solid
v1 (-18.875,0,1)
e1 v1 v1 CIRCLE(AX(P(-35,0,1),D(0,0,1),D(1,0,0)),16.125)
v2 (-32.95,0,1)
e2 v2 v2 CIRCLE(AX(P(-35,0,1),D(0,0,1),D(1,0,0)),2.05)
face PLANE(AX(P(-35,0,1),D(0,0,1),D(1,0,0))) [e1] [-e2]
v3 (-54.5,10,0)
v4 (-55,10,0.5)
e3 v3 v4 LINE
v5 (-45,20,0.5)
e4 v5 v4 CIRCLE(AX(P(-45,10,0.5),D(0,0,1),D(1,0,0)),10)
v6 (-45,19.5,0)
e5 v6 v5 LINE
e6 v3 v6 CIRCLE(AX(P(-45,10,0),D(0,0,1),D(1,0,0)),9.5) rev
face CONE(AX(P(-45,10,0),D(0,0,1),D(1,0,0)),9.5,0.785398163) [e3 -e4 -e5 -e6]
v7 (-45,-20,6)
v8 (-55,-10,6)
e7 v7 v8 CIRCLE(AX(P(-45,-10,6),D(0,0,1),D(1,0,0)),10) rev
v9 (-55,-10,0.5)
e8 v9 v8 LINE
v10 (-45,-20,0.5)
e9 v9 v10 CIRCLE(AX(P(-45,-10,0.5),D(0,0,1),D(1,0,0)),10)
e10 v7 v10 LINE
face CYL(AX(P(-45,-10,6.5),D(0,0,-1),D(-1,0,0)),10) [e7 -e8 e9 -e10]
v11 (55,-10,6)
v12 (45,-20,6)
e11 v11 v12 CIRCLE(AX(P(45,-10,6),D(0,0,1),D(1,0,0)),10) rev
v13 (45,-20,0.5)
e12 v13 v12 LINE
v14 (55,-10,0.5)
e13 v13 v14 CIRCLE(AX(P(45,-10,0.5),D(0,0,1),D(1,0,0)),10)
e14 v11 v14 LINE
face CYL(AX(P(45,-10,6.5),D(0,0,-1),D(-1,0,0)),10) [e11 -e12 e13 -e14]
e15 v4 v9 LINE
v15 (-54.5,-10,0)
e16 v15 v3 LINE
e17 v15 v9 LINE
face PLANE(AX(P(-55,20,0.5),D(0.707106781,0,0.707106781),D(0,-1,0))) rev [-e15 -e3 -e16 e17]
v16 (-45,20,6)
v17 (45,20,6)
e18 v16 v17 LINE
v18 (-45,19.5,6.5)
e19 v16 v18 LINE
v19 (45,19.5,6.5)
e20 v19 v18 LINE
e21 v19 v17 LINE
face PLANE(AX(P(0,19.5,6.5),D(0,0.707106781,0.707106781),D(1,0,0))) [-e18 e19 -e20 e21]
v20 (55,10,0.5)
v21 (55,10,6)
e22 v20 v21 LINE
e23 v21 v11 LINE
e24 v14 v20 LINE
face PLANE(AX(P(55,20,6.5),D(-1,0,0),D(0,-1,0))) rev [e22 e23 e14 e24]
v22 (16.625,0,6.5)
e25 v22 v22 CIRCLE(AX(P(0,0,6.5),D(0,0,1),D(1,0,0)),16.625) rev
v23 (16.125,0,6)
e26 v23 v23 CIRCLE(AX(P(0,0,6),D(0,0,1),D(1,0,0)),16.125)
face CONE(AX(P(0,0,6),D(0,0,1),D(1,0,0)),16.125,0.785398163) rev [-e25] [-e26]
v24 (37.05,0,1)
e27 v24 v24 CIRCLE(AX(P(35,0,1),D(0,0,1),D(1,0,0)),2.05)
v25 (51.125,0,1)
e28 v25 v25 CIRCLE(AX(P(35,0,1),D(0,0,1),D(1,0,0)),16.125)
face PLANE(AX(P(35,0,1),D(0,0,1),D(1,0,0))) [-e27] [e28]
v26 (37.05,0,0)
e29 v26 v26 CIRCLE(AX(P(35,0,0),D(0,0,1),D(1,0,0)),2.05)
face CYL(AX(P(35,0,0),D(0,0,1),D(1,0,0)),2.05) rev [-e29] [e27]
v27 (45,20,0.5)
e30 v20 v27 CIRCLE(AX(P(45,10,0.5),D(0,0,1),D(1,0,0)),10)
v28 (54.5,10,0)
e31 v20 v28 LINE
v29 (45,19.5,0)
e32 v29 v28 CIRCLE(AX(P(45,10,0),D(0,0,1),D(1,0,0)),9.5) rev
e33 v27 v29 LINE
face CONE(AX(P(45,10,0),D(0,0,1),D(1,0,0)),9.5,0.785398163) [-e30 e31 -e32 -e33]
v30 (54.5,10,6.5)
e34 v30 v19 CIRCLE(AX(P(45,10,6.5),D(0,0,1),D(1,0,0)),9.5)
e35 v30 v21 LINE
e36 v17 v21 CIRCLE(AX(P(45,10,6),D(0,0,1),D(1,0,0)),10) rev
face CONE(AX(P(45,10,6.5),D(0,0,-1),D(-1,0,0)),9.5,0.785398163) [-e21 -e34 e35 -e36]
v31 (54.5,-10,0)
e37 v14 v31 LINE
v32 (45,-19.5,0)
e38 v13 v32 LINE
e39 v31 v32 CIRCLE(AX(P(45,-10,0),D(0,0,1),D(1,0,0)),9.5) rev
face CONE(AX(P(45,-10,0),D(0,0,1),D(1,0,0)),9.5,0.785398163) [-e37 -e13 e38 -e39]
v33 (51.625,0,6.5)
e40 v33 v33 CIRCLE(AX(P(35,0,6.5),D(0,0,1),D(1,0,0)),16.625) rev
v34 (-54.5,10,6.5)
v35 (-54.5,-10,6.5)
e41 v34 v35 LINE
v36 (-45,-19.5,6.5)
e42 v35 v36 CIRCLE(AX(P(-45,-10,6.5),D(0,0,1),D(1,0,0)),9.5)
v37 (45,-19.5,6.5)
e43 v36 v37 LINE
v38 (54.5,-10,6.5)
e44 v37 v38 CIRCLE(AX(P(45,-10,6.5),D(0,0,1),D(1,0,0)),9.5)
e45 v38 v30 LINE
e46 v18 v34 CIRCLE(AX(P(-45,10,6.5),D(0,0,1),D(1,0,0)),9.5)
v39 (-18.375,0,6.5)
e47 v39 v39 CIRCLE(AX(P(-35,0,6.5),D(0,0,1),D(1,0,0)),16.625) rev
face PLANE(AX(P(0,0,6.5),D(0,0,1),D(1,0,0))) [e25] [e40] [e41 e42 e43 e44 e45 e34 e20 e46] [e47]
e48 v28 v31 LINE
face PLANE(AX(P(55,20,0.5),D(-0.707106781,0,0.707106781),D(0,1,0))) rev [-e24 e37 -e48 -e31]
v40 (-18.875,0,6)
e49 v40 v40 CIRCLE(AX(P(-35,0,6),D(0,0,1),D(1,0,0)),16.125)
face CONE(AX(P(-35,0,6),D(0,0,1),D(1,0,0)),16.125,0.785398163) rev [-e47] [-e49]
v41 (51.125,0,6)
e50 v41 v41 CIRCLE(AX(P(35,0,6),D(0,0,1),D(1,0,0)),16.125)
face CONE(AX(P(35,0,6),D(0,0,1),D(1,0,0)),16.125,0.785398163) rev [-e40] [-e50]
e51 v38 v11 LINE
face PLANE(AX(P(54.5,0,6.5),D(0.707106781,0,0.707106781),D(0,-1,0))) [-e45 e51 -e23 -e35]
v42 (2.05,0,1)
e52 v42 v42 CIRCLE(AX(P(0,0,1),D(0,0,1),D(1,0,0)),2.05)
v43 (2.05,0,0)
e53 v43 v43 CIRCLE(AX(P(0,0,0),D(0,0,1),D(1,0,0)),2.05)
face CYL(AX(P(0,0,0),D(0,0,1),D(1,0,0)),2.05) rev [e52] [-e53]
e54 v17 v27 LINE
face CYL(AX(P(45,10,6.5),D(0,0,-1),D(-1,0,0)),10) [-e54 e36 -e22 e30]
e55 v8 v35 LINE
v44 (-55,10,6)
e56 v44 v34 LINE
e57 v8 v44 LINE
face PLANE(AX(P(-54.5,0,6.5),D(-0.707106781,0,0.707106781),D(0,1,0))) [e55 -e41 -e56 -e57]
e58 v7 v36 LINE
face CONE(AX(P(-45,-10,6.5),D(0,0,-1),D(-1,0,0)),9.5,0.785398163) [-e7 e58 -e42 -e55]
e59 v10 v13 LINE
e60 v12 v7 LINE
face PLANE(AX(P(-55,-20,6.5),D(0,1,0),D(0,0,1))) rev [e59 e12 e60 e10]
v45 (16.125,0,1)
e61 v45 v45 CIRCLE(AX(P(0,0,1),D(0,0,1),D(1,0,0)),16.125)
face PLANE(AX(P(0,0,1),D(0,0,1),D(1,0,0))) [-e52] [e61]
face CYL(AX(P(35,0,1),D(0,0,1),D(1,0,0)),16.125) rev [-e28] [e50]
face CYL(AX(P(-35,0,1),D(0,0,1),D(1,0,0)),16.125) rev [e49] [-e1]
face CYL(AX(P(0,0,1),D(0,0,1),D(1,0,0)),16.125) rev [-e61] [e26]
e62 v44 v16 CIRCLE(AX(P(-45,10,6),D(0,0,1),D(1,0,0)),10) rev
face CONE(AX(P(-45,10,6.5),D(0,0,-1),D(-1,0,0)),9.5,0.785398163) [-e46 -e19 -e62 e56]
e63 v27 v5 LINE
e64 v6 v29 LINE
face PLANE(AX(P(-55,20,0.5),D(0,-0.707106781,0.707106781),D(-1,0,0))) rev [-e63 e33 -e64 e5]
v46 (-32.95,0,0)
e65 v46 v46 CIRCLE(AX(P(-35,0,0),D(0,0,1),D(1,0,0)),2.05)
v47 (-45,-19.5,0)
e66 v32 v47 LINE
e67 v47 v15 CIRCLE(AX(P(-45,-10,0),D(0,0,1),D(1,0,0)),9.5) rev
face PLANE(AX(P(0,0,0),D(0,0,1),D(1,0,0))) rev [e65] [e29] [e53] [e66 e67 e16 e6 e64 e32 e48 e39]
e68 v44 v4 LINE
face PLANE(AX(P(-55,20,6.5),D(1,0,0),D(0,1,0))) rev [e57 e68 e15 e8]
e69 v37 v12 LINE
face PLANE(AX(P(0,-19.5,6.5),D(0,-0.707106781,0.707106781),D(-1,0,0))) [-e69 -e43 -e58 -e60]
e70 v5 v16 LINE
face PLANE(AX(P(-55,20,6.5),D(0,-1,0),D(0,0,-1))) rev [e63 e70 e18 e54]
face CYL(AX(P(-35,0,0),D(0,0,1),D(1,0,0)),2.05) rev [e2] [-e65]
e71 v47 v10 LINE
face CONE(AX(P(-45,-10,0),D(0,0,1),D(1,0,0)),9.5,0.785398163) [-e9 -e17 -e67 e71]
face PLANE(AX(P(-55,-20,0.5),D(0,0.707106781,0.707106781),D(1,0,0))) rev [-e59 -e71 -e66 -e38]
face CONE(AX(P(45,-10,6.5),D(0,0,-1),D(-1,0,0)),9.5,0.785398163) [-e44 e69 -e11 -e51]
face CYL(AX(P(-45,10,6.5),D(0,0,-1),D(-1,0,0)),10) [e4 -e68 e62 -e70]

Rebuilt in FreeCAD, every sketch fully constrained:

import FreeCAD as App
import Part
import Sketcher
from FreeCAD import Vector


def edges_at(feature, points):
    """Names of the edges that pass closest to the given points."""
    edges = feature.Shape.Edges
    near = lambda p: min(range(len(edges)), key=lambda i: edges[i].distToShape(Part.Vertex(*p))[0])
    return sorted({f"Edge{near(p) + 1}" for p in points})


def add_polygon(sketch, points):
    """Adds a closed chain of lines whose ends are joined by coincident constraints."""
    first, n = sketch.GeometryCount, len(points)
    for a, b in zip(points, points[1:] + points[:1]):
        sketch.addGeometry(Part.LineSegment(App.Vector(*a, 0), App.Vector(*b, 0)), False)
    for i in range(n):
        sketch.addConstraint(Sketcher.Constraint("Coincident", first + i, 2, first + (i + 1) % n, 1))

doc = App.newDocument("Part")
body = doc.addObject("PartDesign::Body", "Body")

sketch1 = body.newObject("Sketcher::SketchObject", "Sketch")
sketch1.AttachmentSupport = (doc.getObject("XY_Plane"), [""])
sketch1.MapMode = "FlatFace"
add_polygon(sketch1, [(-55, 20), (-55, -20), (55, -20), (55, 20)])
sketch1.addConstraint([
    Sketcher.Constraint("Vertical", 0),
    Sketcher.Constraint("Horizontal", 1),
    Sketcher.Constraint("Vertical", 2),
    Sketcher.Constraint("Horizontal", 3),
    Sketcher.Constraint("Symmetric", 0, 2, 2, 2, -1, 1),
    Sketcher.Constraint("DistanceX", 1, 1, 1, 2, 110.0),
    Sketcher.Constraint("DistanceY", 0, 2, 0, 1, 40.0),
])
pad1 = body.newObject("PartDesign::Pad", "Pad")
pad1.Profile = sketch1
pad1.Length = 6.5

sketch2 = body.newObject("Sketcher::SketchObject", "Sketch001")
sketch2.AttachmentSupport = (doc.getObject("XY_Plane"), [""])
sketch2.MapMode = "FlatFace"
sketch2.AttachmentOffset = App.Placement(Vector(0, 0, 6.5), App.Rotation())
sketch2.addGeometry([
    Part.Circle(Vector(0, 0, 0), Vector(0, 0, 1), 16),
    Part.Circle(Vector(35, 0, 0), Vector(0, 0, 1), 16),
    Part.Circle(Vector(-35, 0, 0), Vector(0, 0, 1), 16),
], False)
sketch2.addConstraint([
    Sketcher.Constraint("Coincident", 0, 3, -1, 1),
    Sketcher.Constraint("Equal", 0, 1),
    Sketcher.Constraint("Equal", 1, 2),
    Sketcher.Constraint("Symmetric", 1, 3, 2, 3, -1, 1),
    Sketcher.Constraint("PointOnObject", 1, 3, -1),
    Sketcher.Constraint("Diameter", 0, 32.25),
    Sketcher.Constraint("DistanceX", -1, 1, 1, 3, 35.0),
])
pocket1 = body.newObject("PartDesign::Pocket", "Pocket")
pocket1.Profile = sketch2
pocket1.Length = 5.5
doc.recompute()

fillet = body.newObject("PartDesign::Fillet", "Fillet")
fillet.Base = (pocket1, edges_at(pocket1, [
    (55, -20, 3.25),
    (-55, -20, 3.25),
    (-55, 20, 3.25),
    (55, 20, 3.25),
]))
fillet.Radius = 10

sketch3 = body.newObject("Sketcher::SketchObject", "Sketch002")
sketch3.AttachmentSupport = (doc.getObject("XY_Plane"), [""])
sketch3.MapMode = "FlatFace"
sketch3.AttachmentOffset = App.Placement(Vector(0, 0, 1), App.Rotation())
sketch3.addGeometry([
    Part.Circle(Vector(0, 0, 0), Vector(0, 0, 1), 2),
    Part.Circle(Vector(35, 0, 0), Vector(0, 0, 1), 2),
    Part.Circle(Vector(-35, 0, 0), Vector(0, 0, 1), 2),
], False)
sketch3.addConstraint([
    Sketcher.Constraint("Coincident", 0, 3, -1, 1),
    Sketcher.Constraint("Equal", 0, 1),
    Sketcher.Constraint("Equal", 1, 2),
    Sketcher.Constraint("Symmetric", 1, 3, 2, 3, -1, 1),
    Sketcher.Constraint("PointOnObject", 1, 3, -1),
    Sketcher.Constraint("Diameter", 0, 4.1),
    Sketcher.Constraint("DistanceX", -1, 1, 1, 3, 35.0),
])
pocket2 = body.newObject("PartDesign::Pocket", "Pocket001")
pocket2.Profile = sketch3
pocket2.Type = "ThroughAll"
doc.recompute()

chamfer = body.newObject("PartDesign::Chamfer", "Chamfer")
chamfer.Base = (pocket2, edges_at(pocket2, [
    (-51.125, 0, 6.5),
    (18.875, 0, 6.5),
    (-16.125, 0, 6.5),
    (55, 0, 0),
    (55, 0, 6.5),
    (0, -20, 0),
    (-55, 0, 0),
    (0, 20, 0),
    (-52.071, -17.071, 0),
    (-52.071, 17.071, 0),
    (52.071, 17.071, 0),
    (52.071, -17.071, 0),
    (0, -20, 6.5),
    (0, 20, 6.5),
    (-55, 0, 6.5),
    (-52.071, -17.071, 6.5),
    (-52.071, 17.071, 6.5),
    (52.071, 17.071, 6.5),
    (52.071, -17.071, 6.5),
]))
chamfer.Size = 0.5

doc.recompute()
